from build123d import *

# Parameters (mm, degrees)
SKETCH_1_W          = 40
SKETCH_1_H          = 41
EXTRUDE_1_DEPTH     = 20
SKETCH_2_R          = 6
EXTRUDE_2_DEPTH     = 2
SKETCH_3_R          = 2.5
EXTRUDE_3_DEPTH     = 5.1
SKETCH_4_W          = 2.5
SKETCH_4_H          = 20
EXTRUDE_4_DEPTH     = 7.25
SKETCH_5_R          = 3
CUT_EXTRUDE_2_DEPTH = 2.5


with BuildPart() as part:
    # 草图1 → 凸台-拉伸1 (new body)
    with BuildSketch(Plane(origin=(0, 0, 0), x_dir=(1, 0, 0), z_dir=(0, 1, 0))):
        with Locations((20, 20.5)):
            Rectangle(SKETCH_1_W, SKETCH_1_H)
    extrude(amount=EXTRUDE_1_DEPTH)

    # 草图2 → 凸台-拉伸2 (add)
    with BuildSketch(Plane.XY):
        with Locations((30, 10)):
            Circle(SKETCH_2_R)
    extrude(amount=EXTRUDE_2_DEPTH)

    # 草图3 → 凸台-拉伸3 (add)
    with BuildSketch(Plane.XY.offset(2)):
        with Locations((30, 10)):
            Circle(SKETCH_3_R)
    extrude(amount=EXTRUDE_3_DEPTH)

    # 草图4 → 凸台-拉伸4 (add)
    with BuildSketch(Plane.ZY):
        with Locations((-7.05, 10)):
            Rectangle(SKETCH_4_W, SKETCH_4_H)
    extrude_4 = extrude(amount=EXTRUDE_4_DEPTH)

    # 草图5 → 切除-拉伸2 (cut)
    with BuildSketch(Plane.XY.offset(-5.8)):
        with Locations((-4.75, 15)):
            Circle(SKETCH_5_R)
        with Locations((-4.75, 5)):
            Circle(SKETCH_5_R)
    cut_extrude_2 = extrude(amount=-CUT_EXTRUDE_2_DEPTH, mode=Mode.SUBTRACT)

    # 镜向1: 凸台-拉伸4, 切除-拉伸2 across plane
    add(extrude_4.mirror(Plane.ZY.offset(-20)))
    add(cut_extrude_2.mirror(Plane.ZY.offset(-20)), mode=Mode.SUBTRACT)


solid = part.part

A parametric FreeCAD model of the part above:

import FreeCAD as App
import Part
import Sketcher


def add_polygon(sketch, points):
    """Adds a closed chain of lines whose ends are joined by coincident constraints."""
    first, n = sketch.GeometryCount, len(points)
    for a, b in zip(points, points[1:] + points[:1]):
        sketch.addGeometry(Part.LineSegment(App.Vector(*a, 0), App.Vector(*b, 0)), False)
    for i in range(n):
        sketch.addConstraint(Sketcher.Constraint("Coincident", first + i, 2, first + (i + 1) % n, 1))

doc = App.newDocument("Part")
body = doc.addObject("PartDesign::Body", "Body")

# Sketch on XZ plane
sketch1 = doc.addObject("Sketcher::SketchObject", "Sketch")
body.addObject(sketch1)
sketch1.AttachmentSupport = (doc.XZ_Plane, [""])
sketch1.MapMode = "FlatFace"
add_polygon(sketch1, [(0, -41), (0, 0), (40, 0), (40, -41)])  # lines 0-3
sketch1.addConstraint([
    Sketcher.Constraint("Vertical", 0),
    Sketcher.Constraint("Horizontal", 1),
    Sketcher.Constraint("Vertical", 2),
    Sketcher.Constraint("Horizontal", 3),
    Sketcher.Constraint("Coincident", 0, 2, -1, 1),
    Sketcher.Constraint("DistanceX", 1, 1, 1, 2, 40.0),
    Sketcher.Constraint("DistanceY", 0, 1, 0, 2, 41.0),
])
pad1 = doc.addObject("PartDesign::Pad", "Pad")
body.addObject(pad1)
pad1.Profile = sketch1
pad1.Length = 20
pad1.Reversed = True

# Sketch on XY plane
sketch2 = doc.addObject("Sketcher::SketchObject", "Sketch001")
body.addObject(sketch2)
sketch2.AttachmentSupport = (doc.XY_Plane, [""])
sketch2.MapMode = "FlatFace"
sketch2.addGeometry(Part.Circle(App.Vector(30, 10, 0), App.Vector(0, 0, 1), 6), False)
sketch2.addConstraint([
    Sketcher.Constraint("Diameter", 0, 12.0),
    Sketcher.Constraint("DistanceX", -1, 1, 0, 3, 30.0),
    Sketcher.Constraint("DistanceY", -1, 1, 0, 3, 10.0),
])
pad2 = doc.addObject("PartDesign::Pad", "Pad001")
body.addObject(pad2)
pad2.Profile = sketch2
pad2.Length = 2

# Sketch on XY plane
sketch3 = doc.addObject("Sketcher::SketchObject", "Sketch002")
body.addObject(sketch3)
sketch3.AttachmentSupport = (doc.XY_Plane, [""])
sketch3.MapMode = "FlatFace"
sketch3.AttachmentOffset = App.Placement(App.Vector(0, 0, 2), App.Rotation())
sketch3.addGeometry(Part.Circle(App.Vector(30, 10, 0), App.Vector(0, 0, 1), 2.5), False)
sketch3.addConstraint([
    Sketcher.Constraint("Diameter", 0, 5.0),
    Sketcher.Constraint("DistanceX", -1, 1, 0, 3, 30.0),
    Sketcher.Constraint("DistanceY", -1, 1, 0, 3, 10.0),
])
pad3 = doc.addObject("PartDesign::Pad", "Pad002")
body.addObject(pad3)
pad3.Profile = sketch3
pad3.Length = 5.1

# Sketch on YZ plane
sketch4 = doc.addObject("Sketcher::SketchObject", "Sketch003")
body.addObject(sketch4)
sketch4.AttachmentSupport = (doc.YZ_Plane, [""])
sketch4.MapMode = "FlatFace"
add_polygon(sketch4, [(20, -8.3), (0, -8.3), (0, -5.8), (20, -5.8)])  # lines 0-3
sketch4.addConstraint([
    Sketcher.Constraint("Horizontal", 0),
    Sketcher.Constraint("Vertical", 1),
    Sketcher.Constraint("Horizontal", 2),
    Sketcher.Constraint("Vertical", 3),
    Sketcher.Constraint("PointOnObject", 0, 2, -2),
    Sketcher.Constraint("DistanceX", 0, 2, 0, 1, 20.0),
    Sketcher.Constraint("DistanceY", 1, 1, 1, 2, 2.5),
    Sketcher.Constraint("DistanceY", 0, 2, -1, 1, 8.3),
])
pad4 = doc.addObject("PartDesign::Pad", "Pad003")
body.addObject(pad4)
pad4.Profile = sketch4
pad4.Length = 7.25
pad4.Reversed = True

# Sketch on XY plane
sketch5 = doc.addObject("Sketcher::SketchObject", "Sketch004")
body.addObject(sketch5)
sketch5.AttachmentSupport = (doc.XY_Plane, [""])
sketch5.MapMode = "FlatFace"
sketch5.AttachmentOffset = App.Placement(App.Vector(0, 0, -5.8), App.Rotation())
sketch5.addGeometry([
    Part.Circle(App.Vector(-4.8, 15, 0), App.Vector(0, 0, 1), 3),
    Part.Circle(App.Vector(-4.8, 5, 0), App.Vector(0, 0, 1), 3),
], False)
sketch5.addConstraint([
    Sketcher.Constraint("Equal", 0, 1),
    Sketcher.Constraint("Vertical", 0, 3, 1, 3),
    Sketcher.Constraint("Diameter", 0, 6.0),
    Sketcher.Constraint("DistanceY", -1, 1, 0, 3, 15.0),
    Sketcher.Constraint("DistanceY", -1, 1, 1, 3, 5.0),
    Sketcher.Constraint("DistanceX", 0, 3, -1, 1, 4.75),
])
pocket1 = doc.addObject("PartDesign::Pocket", "Pocket")
body.addObject(pocket1)
pocket1.Profile = sketch5
pocket1.Length = 2.5
doc.recompute()

datumplane = doc.addObject("PartDesign::Plane", "DatumPlane")
body.addObject(datumplane)
datumplane.AttachmentSupport = (doc.YZ_Plane, [""])
datumplane.MapMode = "FlatFace"
datumplane.AttachmentOffset = App.Placement(App.Vector(0, 0, 20), App.Rotation())
mirrored = doc.addObject("PartDesign::Mirrored", "Mirrored")
body.addObject(mirrored)
mirrored.Originals = [pad4, pocket1]
mirrored.MirrorPlane = (datumplane, [""])
body.Tip = mirrored

doc.recompute()
